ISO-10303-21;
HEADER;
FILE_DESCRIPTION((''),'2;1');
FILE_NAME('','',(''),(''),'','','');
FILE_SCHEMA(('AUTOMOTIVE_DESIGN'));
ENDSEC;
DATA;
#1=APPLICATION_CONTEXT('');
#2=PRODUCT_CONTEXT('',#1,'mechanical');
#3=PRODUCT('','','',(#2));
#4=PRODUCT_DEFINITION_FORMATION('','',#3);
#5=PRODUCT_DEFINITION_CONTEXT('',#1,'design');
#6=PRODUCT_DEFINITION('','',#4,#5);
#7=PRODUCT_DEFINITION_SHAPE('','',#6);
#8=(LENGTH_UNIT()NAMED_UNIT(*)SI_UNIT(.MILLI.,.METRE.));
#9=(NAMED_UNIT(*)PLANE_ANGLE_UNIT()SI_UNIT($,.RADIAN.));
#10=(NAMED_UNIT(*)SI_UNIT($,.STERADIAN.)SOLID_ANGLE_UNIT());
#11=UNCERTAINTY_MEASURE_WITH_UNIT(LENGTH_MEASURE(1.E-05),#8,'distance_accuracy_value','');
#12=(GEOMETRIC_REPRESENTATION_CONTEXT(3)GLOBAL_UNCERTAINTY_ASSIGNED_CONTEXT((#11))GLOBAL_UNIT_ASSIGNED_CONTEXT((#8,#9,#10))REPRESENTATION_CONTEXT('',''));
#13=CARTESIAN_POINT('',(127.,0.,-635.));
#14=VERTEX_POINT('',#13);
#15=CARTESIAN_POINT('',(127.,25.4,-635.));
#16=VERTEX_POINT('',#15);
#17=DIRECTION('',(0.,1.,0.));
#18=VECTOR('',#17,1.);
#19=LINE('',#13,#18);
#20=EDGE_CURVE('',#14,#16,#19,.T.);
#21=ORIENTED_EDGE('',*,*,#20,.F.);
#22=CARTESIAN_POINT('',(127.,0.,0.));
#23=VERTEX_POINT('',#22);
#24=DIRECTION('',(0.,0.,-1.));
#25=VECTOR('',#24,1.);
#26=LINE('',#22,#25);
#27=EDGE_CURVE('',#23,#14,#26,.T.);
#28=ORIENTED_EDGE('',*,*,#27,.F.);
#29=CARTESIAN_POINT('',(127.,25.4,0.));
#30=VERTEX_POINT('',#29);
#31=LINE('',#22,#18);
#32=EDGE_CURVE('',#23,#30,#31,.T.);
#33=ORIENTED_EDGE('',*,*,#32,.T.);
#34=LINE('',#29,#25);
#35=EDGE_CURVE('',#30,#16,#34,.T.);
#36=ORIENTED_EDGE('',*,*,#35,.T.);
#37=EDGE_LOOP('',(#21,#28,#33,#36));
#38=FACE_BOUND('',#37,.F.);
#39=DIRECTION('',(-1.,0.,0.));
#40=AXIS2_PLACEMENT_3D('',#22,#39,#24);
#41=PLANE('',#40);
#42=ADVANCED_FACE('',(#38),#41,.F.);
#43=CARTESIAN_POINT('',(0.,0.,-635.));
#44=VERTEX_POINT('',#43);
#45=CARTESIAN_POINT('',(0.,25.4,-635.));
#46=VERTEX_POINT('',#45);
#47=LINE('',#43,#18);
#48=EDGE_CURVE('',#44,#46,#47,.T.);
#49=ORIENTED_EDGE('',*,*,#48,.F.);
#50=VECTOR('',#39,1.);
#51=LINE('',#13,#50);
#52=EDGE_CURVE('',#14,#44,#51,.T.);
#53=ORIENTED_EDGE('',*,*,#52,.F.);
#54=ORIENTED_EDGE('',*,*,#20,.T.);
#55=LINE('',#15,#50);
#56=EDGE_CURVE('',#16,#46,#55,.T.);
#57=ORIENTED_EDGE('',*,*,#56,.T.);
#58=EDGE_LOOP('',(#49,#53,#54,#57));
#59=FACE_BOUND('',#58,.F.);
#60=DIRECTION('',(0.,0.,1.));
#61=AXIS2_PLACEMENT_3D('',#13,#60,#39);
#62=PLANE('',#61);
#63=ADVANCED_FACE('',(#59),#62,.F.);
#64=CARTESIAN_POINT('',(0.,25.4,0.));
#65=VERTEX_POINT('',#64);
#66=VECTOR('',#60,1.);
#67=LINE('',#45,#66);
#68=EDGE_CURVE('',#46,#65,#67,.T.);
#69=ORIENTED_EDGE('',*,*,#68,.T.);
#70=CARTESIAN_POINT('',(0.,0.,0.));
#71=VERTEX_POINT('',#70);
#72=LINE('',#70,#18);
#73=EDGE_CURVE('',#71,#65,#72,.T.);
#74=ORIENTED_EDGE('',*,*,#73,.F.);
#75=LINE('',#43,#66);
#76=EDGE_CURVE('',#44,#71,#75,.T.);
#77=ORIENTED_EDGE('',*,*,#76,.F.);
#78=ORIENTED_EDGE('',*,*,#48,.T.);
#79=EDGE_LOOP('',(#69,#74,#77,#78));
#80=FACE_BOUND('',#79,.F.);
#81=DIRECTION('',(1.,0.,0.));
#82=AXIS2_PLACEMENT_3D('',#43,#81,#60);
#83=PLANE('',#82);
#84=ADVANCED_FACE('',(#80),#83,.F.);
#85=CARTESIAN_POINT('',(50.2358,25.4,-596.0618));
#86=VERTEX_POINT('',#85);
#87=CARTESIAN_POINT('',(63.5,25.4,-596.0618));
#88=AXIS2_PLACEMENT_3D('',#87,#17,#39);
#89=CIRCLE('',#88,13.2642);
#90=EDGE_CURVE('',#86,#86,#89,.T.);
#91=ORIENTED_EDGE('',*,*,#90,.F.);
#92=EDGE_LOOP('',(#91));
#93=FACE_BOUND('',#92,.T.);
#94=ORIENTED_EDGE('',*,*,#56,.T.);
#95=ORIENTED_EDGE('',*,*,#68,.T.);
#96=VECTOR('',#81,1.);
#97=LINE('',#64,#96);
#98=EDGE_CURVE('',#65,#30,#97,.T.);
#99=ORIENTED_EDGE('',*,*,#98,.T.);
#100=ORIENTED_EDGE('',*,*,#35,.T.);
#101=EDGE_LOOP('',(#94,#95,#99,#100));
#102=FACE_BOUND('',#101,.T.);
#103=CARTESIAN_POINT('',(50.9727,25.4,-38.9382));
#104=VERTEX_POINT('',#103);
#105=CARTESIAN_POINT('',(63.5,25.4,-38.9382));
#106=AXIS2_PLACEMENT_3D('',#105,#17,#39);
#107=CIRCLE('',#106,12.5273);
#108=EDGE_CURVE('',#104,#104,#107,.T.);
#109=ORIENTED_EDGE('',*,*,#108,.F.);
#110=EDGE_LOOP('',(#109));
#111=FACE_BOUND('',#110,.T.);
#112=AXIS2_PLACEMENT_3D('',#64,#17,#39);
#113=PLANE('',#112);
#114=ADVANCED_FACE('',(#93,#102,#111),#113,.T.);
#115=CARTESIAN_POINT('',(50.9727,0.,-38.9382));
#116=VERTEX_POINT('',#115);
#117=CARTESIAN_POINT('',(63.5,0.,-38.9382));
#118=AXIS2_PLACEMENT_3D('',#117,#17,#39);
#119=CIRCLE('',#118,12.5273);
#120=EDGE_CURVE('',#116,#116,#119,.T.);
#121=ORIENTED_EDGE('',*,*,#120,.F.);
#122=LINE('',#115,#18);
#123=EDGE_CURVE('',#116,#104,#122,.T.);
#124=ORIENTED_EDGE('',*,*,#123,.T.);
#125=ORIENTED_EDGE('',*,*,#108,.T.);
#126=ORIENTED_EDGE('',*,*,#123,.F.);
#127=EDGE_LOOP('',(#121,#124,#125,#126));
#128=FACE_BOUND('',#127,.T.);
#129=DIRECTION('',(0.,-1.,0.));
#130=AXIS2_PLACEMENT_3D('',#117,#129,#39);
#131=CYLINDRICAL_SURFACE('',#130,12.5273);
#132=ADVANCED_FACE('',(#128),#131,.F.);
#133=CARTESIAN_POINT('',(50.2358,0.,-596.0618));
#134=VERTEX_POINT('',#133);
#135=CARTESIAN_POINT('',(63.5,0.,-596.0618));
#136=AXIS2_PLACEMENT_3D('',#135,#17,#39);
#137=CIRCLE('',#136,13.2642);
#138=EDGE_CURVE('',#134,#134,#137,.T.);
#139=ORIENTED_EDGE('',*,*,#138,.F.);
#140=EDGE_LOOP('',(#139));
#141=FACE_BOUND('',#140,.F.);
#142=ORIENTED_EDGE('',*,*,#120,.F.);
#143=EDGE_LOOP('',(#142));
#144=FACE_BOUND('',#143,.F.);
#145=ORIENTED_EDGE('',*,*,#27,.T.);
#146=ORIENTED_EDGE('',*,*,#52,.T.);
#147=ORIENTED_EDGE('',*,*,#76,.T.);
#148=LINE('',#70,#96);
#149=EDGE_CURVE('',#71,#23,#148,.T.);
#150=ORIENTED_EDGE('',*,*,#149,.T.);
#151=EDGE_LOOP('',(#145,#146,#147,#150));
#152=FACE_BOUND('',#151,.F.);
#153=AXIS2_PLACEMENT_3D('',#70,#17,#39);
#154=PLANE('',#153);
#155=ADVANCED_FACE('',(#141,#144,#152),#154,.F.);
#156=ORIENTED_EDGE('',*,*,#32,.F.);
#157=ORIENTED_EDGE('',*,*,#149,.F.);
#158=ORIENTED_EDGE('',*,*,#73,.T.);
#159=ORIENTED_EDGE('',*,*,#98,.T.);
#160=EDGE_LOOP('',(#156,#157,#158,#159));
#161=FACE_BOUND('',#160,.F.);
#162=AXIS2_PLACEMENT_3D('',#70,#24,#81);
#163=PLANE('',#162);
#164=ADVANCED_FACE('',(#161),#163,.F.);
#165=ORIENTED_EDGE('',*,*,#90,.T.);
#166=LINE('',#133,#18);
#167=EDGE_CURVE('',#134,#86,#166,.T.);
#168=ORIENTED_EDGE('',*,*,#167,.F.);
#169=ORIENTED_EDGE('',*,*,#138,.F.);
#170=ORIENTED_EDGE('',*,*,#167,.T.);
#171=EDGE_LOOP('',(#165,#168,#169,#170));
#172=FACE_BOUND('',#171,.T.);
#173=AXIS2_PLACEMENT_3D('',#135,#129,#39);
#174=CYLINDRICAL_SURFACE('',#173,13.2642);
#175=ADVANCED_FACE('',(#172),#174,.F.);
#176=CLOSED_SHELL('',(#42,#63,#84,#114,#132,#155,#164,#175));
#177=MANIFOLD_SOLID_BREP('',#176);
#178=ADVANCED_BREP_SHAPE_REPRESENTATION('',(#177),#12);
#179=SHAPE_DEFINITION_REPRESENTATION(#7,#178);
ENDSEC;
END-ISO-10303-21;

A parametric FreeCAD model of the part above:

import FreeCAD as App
import Part
import Sketcher
from FreeCAD import Vector
Q = App.Units.Quantity

doc = App.newDocument("Part")
body = doc.addObject("PartDesign::Body", "Body")

# Sketch on XZ plane
sketch1 = body.newObject("Sketcher::SketchObject", "Sketch")
sketch1.AttachmentSupport = (doc.getObject("XZ_Plane"), [""])
sketch1.MapMode = "FlatFace"
sketch1.addGeometry([
    Part.LineSegment(Vector(0, -635, 0), Vector(0, 0, 0)),  # 0
    Part.LineSegment(Vector(0, 0, 0), Vector(127, 0, 0)),  # 1
    Part.LineSegment(Vector(127, 0, 0), Vector(127, -635, 0)),  # 2
    Part.LineSegment(Vector(127, -635, 0), Vector(0, -635, 0)),  # 3
    Part.Circle(Vector(64, -596, 0), Vector(0, 0, 1), 13),  # 4
    Part.Circle(Vector(64, -39, 0), Vector(0, 0, 1), 13),  # 5
], False)
sketch1.addConstraint([
    Sketcher.Constraint("Coincident", 0, 2, 1, 1),
    Sketcher.Constraint("Coincident", 1, 2, 2, 1),
    Sketcher.Constraint("Coincident", 2, 2, 3, 1),
    Sketcher.Constraint("Coincident", 3, 2, 0, 1),
    Sketcher.Constraint("Vertical", 0),
    Sketcher.Constraint("Horizontal", 1),
    Sketcher.Constraint("Vertical", 2),
    Sketcher.Constraint("Horizontal", 3),
    Sketcher.Constraint("Coincident", 0, 2, -1, 1),
    Sketcher.Constraint("Vertical", 4, 3, 5, 3),
    Sketcher.Constraint("DistanceX", 1, 1, 1, 2, Q("5 in")),
    Sketcher.Constraint("DistanceY", 0, 1, 0, 2, Q("25 in")),
    Sketcher.Constraint("DistanceY", 5, 3, -1, 1, Q("1.533 in")),
    Sketcher.Constraint("DistanceY", 2, 2, 4, 3, Q("1.533 in")),
    Sketcher.Constraint("Diameter", 5, Q("0.9864 in")),
    Sketcher.Constraint("DistanceX", -1, 1, 4, 3, Q("2.5 in")),
    Sketcher.Constraint("Diameter", 4, Q("26.5284 mm")),
])
pad1 = body.newObject("PartDesign::Pad", "Pad")
pad1.Profile = sketch1
pad1.Length = Q("1 in")
pad1.Reversed = True

doc.recompute()
